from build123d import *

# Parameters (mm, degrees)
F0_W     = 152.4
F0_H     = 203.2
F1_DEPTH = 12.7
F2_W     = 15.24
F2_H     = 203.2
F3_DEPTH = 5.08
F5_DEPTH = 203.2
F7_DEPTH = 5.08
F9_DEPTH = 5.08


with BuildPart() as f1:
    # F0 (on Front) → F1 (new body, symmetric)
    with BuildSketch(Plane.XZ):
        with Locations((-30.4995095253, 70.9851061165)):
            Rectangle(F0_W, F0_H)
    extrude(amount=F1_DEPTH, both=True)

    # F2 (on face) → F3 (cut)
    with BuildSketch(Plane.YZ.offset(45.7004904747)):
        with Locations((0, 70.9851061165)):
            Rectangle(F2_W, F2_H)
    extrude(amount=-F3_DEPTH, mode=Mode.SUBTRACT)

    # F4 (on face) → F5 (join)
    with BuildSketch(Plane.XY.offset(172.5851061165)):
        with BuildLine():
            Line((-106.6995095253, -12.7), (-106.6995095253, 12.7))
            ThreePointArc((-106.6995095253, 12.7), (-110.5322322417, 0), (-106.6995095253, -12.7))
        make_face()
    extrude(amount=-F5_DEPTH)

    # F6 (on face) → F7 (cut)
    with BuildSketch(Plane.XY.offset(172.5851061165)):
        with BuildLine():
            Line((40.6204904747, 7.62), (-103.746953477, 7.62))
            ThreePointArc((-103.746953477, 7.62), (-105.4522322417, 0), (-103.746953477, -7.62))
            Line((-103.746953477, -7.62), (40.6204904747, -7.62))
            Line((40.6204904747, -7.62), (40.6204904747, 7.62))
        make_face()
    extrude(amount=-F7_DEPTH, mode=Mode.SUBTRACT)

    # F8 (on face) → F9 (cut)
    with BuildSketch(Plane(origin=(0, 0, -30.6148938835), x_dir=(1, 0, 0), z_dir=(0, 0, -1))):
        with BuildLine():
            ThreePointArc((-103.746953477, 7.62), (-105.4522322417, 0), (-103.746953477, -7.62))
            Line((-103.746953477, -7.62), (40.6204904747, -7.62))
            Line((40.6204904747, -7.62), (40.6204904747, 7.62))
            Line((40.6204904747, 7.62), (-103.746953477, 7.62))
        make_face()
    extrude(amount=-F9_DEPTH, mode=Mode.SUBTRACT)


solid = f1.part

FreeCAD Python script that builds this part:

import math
import FreeCAD as App
import Part
import Sketcher
Q = App.Units.Quantity

doc = App.newDocument("Part")
body = doc.addObject("PartDesign::Body", "Body")

# Sketch on XZ plane
sketch1 = body.newObject("Sketcher::SketchObject", "Sketch")
sketch1.AttachmentSupport = (doc.getObject("XZ_Plane"), [""])
sketch1.MapMode = "FlatFace"
sketch1.addGeometry(Part.LineSegment(App.Vector(-107, 173, 0), App.Vector(-107, -31, 0)), False)
sketch1.addGeometry(Part.LineSegment(App.Vector(-107, -31, 0), App.Vector(46, -31, 0)), False)
sketch1.addGeometry(Part.LineSegment(App.Vector(46, -31, 0), App.Vector(46, 173, 0)), False)
sketch1.addGeometry(Part.LineSegment(App.Vector(46, 173, 0), App.Vector(-107, 173, 0)), False)
sketch1.addConstraint(Sketcher.Constraint("Coincident", 0, 2, 1, 1))
sketch1.addConstraint(Sketcher.Constraint("Coincident", 1, 2, 2, 1))
sketch1.addConstraint(Sketcher.Constraint("Coincident", 2, 2, 3, 1))
sketch1.addConstraint(Sketcher.Constraint("Coincident", 3, 2, 0, 1))
sketch1.addConstraint(Sketcher.Constraint("Vertical", 0))
sketch1.addConstraint(Sketcher.Constraint("Horizontal", 1))
sketch1.addConstraint(Sketcher.Constraint("Vertical", 2))
sketch1.addConstraint(Sketcher.Constraint("Horizontal", 3))
sketch1.addConstraint(Sketcher.Constraint("DistanceX", 1, 1, 1, 2, Q("6 in")))
sketch1.addConstraint(Sketcher.Constraint("DistanceY", 0, 2, 0, 1, Q("8 in")))
sketch1.addConstraint(Sketcher.Constraint("DistanceX", 0, 2, -1, 1, 106.69951))
sketch1.addConstraint(Sketcher.Constraint("DistanceY", 0, 2, -1, 1, 30.614894))
pad1 = body.newObject("PartDesign::Pad", "Pad")
pad1.Profile = sketch1
pad1.Length = Q("1 in")
pad1.Midplane = True

# Sketch on YZ plane
sketch2 = body.newObject("Sketcher::SketchObject", "Sketch001")
sketch2.AttachmentSupport = (doc.getObject("YZ_Plane"), [""])
sketch2.MapMode = "FlatFace"
sketch2.AttachmentOffset = App.Placement(App.Vector(0, 0, 45.70049), App.Rotation())
sketch2.addGeometry(Part.LineSegment(App.Vector(-8, 173, 0), App.Vector(-8, -31, 0)), False)
sketch2.addGeometry(Part.LineSegment(App.Vector(-8, -31, 0), App.Vector(8, -31, 0)), False)
sketch2.addGeometry(Part.LineSegment(App.Vector(8, -31, 0), App.Vector(8, 173, 0)), False)
sketch2.addGeometry(Part.LineSegment(App.Vector(8, 173, 0), App.Vector(-8, 173, 0)), False)
sketch2.addConstraint(Sketcher.Constraint("Coincident", 0, 2, 1, 1))
sketch2.addConstraint(Sketcher.Constraint("Coincident", 1, 2, 2, 1))
sketch2.addConstraint(Sketcher.Constraint("Coincident", 2, 2, 3, 1))
sketch2.addConstraint(Sketcher.Constraint("Coincident", 3, 2, 0, 1))
sketch2.addConstraint(Sketcher.Constraint("Vertical", 0))
sketch2.addConstraint(Sketcher.Constraint("Horizontal", 1))
sketch2.addConstraint(Sketcher.Constraint("Vertical", 2))
sketch2.addConstraint(Sketcher.Constraint("Horizontal", 3))
sketch2.addConstraint(Sketcher.Constraint("DistanceY", 0, 2, 0, 1, Q("8 in")))
sketch2.addConstraint(Sketcher.Constraint("DistanceX", 1, 1, 1, 2, Q("0.6 in")))
sketch2.addConstraint(Sketcher.Constraint("DistanceX", 0, 2, -1, 1, Q("0.3 in")))
sketch2.addConstraint(Sketcher.Constraint("DistanceY", 0, 2, -1, 1, 30.614894))
pocket1 = body.newObject("PartDesign::Pocket", "Pocket")
pocket1.Profile = sketch2
pocket1.Length = Q("0.2 in")

# Sketch on XY plane
sketch3 = body.newObject("Sketcher::SketchObject", "Sketch002")
sketch3.AttachmentSupport = (doc.getObject("XY_Plane"), [""])
sketch3.MapMode = "FlatFace"
sketch3.AttachmentOffset = App.Placement(App.Vector(0, 0, 172.585106), App.Rotation())
sketch3.addGeometry(Part.LineSegment(App.Vector(-107, -13, 0), App.Vector(-107, 13, 0)), False)
sketch3.addGeometry(Part.ArcOfCircle(Part.Circle(App.Vector(-88, 0, 0), App.Vector(0, 0, 1), 23), math.radians(146), math.radians(214)), False)
sketch3.addConstraint(Sketcher.Constraint("Coincident", 0, 1, 1, 2))
sketch3.addConstraint(Sketcher.Constraint("Coincident", 1, 1, 0, 2))
sketch3.addConstraint(Sketcher.Constraint("Vertical", 0))
sketch3.addConstraint(Sketcher.Constraint("PointOnObject", 1, 3, -1))
sketch3.addConstraint(Sketcher.Constraint("DistanceY", 0, 1, 0, 2, Q("1 in")))
sketch3.addConstraint(Sketcher.Constraint("Radius", 1, 22.957539))
sketch3.addConstraint(Sketcher.Constraint("DistanceX", 0, 1, -1, 1, 106.69951))
pad2 = body.newObject("PartDesign::Pad", "Pad001")
pad2.Profile = sketch3
pad2.Length = Q("8 in")
pad2.Reversed = True

# Sketch on XY plane
sketch4 = body.newObject("Sketcher::SketchObject", "Sketch003")
sketch4.AttachmentSupport = (doc.getObject("XY_Plane"), [""])
sketch4.MapMode = "FlatFace"
sketch4.AttachmentOffset = App.Placement(App.Vector(0, 0, 172.585106), App.Rotation())
sketch4.addGeometry(Part.LineSegment(App.Vector(41, 8, 0), App.Vector(-104, 8, 0)), False)
sketch4.addGeometry(Part.ArcOfCircle(Part.Circle(App.Vector(-88, 0, 0), App.Vector(0, 0, 1), 18), math.radians(155), math.radians(205)), False)
sketch4.addGeometry(Part.LineSegment(App.Vector(-104, -8, 0), App.Vector(41, -8, 0)), False)
sketch4.addGeometry(Part.LineSegment(App.Vector(41, -8, 0), App.Vector(41, 8, 0)), False)
sketch4.addConstraint(Sketcher.Constraint("Coincident", 0, 2, 1, 1))
sketch4.addConstraint(Sketcher.Constraint("Coincident", 1, 2, 2, 1))
sketch4.addConstraint(Sketcher.Constraint("Coincident", 2, 2, 3, 1))
sketch4.addConstraint(Sketcher.Constraint("Coincident", 3, 2, 0, 1))
sketch4.addConstraint(Sketcher.Constraint("Horizontal", 0))
sketch4.addConstraint(Sketcher.Constraint("Horizontal", 2))
sketch4.addConstraint(Sketcher.Constraint("Vertical", 3))
sketch4.addConstraint(Sketcher.Constraint("Symmetric", 0, 2, 1, 2, -1))
sketch4.addConstraint(Sketcher.Constraint("DistanceY", 3, 1, 3, 2, Q("0.6 in")))
sketch4.addConstraint(Sketcher.Constraint("Radius", 1, 17.877539))
sketch4.addConstraint(Sketcher.Constraint("DistanceX", 0, 2, 0, 1, 144.367444))
sketch4.addConstraint(Sketcher.Constraint("DistanceX", -1, 1, 2, 2, 40.62049))
pocket2 = body.newObject("PartDesign::Pocket", "Pocket001")
pocket2.Profile = sketch4
pocket2.Length = Q("0.2 in")

# Sketch on XY plane
sketch5 = body.newObject("Sketcher::SketchObject", "Sketch004")
sketch5.AttachmentSupport = (doc.getObject("XY_Plane"), [""])
sketch5.MapMode = "FlatFace"
sketch5.AttachmentOffset = App.Placement(App.Vector(0, 0, -30.614894), App.Rotation())
sketch5.addGeometry(Part.ArcOfCircle(Part.Circle(App.Vector(-88, 0, 0), App.Vector(0, 0, 1), 18), math.radians(155), math.radians(205)), False)
sketch5.addGeometry(Part.LineSegment(App.Vector(-104, 8, 0), App.Vector(41, 8, 0)), False)
sketch5.addGeometry(Part.LineSegment(App.Vector(41, 8, 0), App.Vector(41, -8, 0)), False)
sketch5.addGeometry(Part.LineSegment(App.Vector(41, -8, 0), App.Vector(-104, -8, 0)), False)
sketch5.addConstraint(Sketcher.Constraint("Coincident", 0, 1, 1, 1))
sketch5.addConstraint(Sketcher.Constraint("Coincident", 1, 2, 2, 1))
sketch5.addConstraint(Sketcher.Constraint("Coincident", 2, 2, 3, 1))
sketch5.addConstraint(Sketcher.Constraint("Coincident", 3, 2, 0, 2))
sketch5.addConstraint(Sketcher.Constraint("Horizontal", 1))
sketch5.addConstraint(Sketcher.Constraint("Vertical", 2))
sketch5.addConstraint(Sketcher.Constraint("Horizontal", 3))
sketch5.addConstraint(Sketcher.Constraint("Symmetric", 0, 1, 3, 2, -1))
sketch5.addConstraint(Sketcher.Constraint("DistanceY", 2, 2, 2, 1, Q("0.6 in")))
sketch5.addConstraint(Sketcher.Constraint("Radius", 0, 17.877539))
sketch5.addConstraint(Sketcher.Constraint("DistanceX", 1, 1, 1, 2, 144.367444))
sketch5.addConstraint(Sketcher.Constraint("DistanceX", -1, 1, 1, 2, 40.62049))
pocket3 = body.newObject("PartDesign::Pocket", "Pocket002")
pocket3.Profile = sketch5
pocket3.Length = Q("0.2 in")
pocket3.Reversed = True

doc.recompute()
